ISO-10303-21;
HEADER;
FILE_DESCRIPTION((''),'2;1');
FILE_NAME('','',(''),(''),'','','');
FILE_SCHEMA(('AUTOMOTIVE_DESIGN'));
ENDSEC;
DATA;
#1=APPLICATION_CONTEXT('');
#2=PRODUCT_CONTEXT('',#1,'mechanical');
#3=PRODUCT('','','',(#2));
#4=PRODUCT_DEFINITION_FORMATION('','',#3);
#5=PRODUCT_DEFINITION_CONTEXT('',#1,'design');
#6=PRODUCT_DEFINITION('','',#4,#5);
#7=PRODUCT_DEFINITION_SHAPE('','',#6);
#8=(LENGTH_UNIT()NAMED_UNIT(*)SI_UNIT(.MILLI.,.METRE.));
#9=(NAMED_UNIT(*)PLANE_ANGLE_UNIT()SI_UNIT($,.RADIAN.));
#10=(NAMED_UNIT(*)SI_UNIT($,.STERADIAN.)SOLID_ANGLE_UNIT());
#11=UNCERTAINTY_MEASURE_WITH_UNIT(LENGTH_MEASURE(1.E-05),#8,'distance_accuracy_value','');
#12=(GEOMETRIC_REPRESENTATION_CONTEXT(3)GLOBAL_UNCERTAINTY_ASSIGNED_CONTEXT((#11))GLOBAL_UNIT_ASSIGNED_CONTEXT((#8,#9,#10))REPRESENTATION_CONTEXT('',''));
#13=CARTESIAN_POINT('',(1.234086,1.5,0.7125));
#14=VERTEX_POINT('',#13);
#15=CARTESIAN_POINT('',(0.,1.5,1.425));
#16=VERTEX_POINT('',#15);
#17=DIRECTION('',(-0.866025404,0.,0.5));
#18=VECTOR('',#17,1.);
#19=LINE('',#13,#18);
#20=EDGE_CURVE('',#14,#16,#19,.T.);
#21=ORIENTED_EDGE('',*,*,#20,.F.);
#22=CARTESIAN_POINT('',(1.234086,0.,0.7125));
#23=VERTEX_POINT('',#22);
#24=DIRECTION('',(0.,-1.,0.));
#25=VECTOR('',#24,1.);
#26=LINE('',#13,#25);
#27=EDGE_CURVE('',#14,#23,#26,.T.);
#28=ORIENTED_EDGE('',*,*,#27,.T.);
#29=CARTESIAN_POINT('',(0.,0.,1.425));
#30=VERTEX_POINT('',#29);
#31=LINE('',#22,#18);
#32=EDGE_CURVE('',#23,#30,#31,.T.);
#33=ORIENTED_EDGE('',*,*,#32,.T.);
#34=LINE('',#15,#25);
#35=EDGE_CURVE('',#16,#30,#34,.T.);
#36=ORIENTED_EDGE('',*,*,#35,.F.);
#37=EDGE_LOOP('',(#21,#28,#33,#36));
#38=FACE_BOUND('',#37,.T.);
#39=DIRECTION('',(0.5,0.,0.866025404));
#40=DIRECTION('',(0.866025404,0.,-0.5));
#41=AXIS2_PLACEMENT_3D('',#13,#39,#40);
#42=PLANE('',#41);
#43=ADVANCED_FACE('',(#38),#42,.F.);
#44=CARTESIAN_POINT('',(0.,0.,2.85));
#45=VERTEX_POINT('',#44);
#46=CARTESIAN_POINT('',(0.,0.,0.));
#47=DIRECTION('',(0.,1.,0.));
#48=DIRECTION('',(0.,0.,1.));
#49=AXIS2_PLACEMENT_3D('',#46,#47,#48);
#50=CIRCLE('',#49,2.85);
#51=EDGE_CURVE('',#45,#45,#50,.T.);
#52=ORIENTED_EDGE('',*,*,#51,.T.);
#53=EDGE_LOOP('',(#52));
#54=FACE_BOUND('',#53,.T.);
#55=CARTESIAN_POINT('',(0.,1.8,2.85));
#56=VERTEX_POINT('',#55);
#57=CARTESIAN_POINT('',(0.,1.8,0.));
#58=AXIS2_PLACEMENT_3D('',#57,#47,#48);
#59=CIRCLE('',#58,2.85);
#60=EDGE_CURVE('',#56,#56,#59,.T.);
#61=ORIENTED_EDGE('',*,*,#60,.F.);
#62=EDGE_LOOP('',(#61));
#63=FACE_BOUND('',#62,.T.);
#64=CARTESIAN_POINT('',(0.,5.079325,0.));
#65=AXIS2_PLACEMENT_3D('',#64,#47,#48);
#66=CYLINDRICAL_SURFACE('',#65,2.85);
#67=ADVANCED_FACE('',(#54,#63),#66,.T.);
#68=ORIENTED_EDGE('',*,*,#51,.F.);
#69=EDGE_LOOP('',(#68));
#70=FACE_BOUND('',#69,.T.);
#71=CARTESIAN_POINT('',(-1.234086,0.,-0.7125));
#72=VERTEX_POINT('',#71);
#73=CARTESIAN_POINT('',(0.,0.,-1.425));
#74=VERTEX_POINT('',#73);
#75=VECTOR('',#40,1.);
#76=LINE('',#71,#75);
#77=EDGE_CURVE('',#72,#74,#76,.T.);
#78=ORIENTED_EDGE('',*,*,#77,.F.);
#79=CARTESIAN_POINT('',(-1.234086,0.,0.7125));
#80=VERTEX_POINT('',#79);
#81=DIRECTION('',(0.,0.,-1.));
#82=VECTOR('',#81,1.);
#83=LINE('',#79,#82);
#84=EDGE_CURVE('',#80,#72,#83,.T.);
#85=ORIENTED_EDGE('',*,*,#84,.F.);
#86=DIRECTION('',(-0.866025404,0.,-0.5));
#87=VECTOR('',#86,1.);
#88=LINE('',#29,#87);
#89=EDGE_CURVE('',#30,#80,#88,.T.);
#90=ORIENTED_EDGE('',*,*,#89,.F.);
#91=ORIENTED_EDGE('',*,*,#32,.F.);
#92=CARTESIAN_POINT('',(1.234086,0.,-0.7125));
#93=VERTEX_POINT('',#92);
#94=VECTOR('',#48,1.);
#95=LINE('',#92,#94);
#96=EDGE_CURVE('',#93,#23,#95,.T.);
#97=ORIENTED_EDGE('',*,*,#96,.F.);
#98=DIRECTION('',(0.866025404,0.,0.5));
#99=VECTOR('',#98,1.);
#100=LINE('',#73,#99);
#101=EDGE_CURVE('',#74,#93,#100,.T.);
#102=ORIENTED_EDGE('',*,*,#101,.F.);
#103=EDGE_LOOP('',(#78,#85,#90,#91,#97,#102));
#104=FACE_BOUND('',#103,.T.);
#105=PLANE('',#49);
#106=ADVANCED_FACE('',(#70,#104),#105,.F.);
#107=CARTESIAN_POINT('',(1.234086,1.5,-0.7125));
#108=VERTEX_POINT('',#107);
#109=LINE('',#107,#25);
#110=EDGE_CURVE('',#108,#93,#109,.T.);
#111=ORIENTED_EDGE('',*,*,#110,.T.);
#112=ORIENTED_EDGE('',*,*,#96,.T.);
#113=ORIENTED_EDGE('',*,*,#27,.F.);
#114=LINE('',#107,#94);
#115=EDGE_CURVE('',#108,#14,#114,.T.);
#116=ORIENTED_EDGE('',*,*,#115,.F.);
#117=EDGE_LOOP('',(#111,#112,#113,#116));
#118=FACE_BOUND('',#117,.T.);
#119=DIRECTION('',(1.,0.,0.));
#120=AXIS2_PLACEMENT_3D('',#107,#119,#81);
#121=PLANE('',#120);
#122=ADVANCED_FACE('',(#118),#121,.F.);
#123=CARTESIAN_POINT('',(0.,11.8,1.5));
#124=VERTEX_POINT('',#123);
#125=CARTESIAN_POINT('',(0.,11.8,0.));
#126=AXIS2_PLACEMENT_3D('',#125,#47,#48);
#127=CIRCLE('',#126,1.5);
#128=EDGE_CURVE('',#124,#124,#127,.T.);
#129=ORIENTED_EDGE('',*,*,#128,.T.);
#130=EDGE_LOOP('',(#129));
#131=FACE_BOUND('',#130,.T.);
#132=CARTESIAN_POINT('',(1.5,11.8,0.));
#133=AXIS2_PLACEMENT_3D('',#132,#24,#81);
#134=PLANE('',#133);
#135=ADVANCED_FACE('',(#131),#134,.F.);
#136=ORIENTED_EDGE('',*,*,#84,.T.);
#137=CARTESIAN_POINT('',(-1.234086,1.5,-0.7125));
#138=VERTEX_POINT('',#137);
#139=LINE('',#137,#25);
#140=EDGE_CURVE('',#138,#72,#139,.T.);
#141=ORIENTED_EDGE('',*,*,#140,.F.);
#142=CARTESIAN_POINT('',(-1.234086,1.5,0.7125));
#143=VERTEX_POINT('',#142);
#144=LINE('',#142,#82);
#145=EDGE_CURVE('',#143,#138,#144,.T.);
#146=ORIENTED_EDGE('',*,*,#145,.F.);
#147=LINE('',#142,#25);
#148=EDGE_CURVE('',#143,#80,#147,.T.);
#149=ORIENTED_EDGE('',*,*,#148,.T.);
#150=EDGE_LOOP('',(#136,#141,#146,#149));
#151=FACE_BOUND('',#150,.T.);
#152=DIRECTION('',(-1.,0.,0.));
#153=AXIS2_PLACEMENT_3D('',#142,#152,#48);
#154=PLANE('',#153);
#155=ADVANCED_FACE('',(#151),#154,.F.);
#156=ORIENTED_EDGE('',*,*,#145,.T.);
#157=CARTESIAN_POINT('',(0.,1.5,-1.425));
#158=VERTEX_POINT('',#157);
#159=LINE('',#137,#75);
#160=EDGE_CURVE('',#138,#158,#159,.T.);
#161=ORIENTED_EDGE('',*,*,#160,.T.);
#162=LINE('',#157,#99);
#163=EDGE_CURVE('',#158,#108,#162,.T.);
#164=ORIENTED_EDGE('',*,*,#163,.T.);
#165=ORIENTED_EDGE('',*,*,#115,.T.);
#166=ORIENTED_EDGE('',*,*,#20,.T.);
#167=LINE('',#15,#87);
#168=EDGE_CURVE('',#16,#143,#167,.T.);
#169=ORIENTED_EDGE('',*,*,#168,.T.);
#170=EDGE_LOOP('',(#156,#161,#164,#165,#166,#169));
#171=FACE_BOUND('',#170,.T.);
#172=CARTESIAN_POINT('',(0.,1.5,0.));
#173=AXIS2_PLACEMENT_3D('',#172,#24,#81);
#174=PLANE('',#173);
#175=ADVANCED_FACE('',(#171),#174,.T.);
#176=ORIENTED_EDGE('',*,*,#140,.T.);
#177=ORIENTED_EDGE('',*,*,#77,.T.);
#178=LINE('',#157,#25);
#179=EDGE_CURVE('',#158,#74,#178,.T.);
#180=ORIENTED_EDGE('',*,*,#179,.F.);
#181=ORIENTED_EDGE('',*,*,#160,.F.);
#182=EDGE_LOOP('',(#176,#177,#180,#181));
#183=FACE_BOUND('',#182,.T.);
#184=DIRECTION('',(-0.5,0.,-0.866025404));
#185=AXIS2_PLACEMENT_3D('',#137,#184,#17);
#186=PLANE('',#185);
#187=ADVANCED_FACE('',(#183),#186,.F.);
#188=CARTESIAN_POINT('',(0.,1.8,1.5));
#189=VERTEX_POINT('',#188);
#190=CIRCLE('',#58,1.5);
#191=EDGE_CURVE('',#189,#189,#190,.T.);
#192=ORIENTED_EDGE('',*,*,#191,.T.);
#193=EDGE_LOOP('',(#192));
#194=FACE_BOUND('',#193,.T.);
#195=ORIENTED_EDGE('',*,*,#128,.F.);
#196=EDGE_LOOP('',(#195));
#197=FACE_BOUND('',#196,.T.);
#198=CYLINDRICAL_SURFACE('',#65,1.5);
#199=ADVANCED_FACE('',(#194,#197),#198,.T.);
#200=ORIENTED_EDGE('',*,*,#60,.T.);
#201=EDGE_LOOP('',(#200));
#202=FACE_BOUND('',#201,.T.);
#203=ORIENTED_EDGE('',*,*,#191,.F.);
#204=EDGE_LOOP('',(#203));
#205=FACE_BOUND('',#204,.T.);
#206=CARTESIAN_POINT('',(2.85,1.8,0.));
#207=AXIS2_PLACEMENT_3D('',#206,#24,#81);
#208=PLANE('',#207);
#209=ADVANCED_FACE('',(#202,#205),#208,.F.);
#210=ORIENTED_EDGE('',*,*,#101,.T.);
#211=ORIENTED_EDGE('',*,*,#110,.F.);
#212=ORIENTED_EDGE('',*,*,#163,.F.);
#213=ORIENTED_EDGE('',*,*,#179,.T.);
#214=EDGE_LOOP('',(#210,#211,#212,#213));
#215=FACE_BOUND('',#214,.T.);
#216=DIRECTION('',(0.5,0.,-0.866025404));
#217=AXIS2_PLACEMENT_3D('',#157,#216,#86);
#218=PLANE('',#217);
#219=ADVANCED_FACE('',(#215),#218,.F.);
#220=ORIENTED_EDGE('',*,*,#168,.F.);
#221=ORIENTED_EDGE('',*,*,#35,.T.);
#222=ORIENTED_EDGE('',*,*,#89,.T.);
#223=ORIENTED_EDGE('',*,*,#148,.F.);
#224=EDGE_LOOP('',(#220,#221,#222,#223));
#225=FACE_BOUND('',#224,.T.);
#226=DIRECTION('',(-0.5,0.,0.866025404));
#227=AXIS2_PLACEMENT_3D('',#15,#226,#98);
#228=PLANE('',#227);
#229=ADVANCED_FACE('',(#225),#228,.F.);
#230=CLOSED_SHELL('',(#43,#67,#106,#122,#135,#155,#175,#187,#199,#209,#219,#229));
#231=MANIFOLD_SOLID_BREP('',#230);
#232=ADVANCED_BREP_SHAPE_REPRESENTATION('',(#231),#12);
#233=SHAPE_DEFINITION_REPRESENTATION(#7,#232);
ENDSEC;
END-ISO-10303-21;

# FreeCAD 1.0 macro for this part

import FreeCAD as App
import Part
import Sketcher
Q = App.Units.Quantity


def add_polygon(sketch, points):
    """Adds a closed chain of lines whose ends are joined by coincident constraints."""
    first, n = sketch.GeometryCount, len(points)
    for a, b in zip(points, points[1:] + points[:1]):
        sketch.addGeometry(Part.LineSegment(App.Vector(*a, 0), App.Vector(*b, 0)), False)
    for i in range(n):
        sketch.addConstraint(Sketcher.Constraint("Coincident", first + i, 2, first + (i + 1) % n, 1))

doc = App.newDocument("Part")
body = doc.addObject("PartDesign::Body", "Body")

sketch1 = body.newObject("Sketcher::SketchObject", "Sketch")
sketch1.AttachmentSupport = (doc.getObject("XY_Plane"), [""])
sketch1.MapMode = "FlatFace"
add_polygon(sketch1, [(0, 0), (2.85, 0), (2.85, 1.8), (1.5, 1.8), (1.5, 11.8), (0, 11.8)])
sketch1.addConstraint([
    Sketcher.Constraint("Horizontal", 0),
    Sketcher.Constraint("Vertical", 1),
    Sketcher.Constraint("Horizontal", 2),
    Sketcher.Constraint("Vertical", 3),
    Sketcher.Constraint("Horizontal", 4),
    Sketcher.Constraint("Vertical", 5),
    Sketcher.Constraint("Coincident", 5, 2, -1, 1),
    Sketcher.Constraint("DistanceY", 3, 1, 3, 2, 10.0),
    Sketcher.Constraint("DistanceX", 4, 2, 4, 1, 1.5),
    Sketcher.Constraint("DistanceY", 1, 1, 1, 2, 1.8),
    Sketcher.Constraint("DistanceX", 0, 1, 0, 2, 2.85),
])
revolution = body.newObject("PartDesign::Revolution", "Revolution")
revolution.Profile = sketch1
revolution.ReferenceAxis = (sketch1, ["V_Axis"])
revolution.Angle = 360

sketch2 = body.newObject("Sketcher::SketchObject", "Sketch001")
sketch2.AttachmentSupport = (doc.getObject("XZ_Plane"), [""])
sketch2.MapMode = "FlatFace"
add_polygon(sketch2, [(0, -1.425), (1.234086, -0.7125), (1.234086, 0.7125), (0, 1.425), (-1.234086, 0.7125), (-1.234086, -0.7125)])
sketch2.addConstraint([
    Sketcher.Constraint("Vertical", 1),
    Sketcher.Constraint("Vertical", 4),
    Sketcher.Constraint("Symmetric", 0, 2, 3, 2, -1, 1),
    Sketcher.Constraint("Symmetric", 2, 2, 5, 2, -1, 1),
    Sketcher.Constraint("PointOnObject", 2, 2, -2),
    Sketcher.Constraint("Parallel", 2, 5),
    Sketcher.Constraint("Horizontal", 1, 2, 3, 2),
    Sketcher.Constraint("Angle", 0, Q("30 deg")),
    Sketcher.Constraint("DistanceY", 1, 1, 1, 2, 1.425),
    Sketcher.Constraint("DistanceY", 5, 2, 2, 2, 2.85),
])
pocket1 = body.newObject("PartDesign::Pocket", "Pocket")
pocket1.Profile = sketch2
pocket1.Length = 1.5

doc.recompute()
